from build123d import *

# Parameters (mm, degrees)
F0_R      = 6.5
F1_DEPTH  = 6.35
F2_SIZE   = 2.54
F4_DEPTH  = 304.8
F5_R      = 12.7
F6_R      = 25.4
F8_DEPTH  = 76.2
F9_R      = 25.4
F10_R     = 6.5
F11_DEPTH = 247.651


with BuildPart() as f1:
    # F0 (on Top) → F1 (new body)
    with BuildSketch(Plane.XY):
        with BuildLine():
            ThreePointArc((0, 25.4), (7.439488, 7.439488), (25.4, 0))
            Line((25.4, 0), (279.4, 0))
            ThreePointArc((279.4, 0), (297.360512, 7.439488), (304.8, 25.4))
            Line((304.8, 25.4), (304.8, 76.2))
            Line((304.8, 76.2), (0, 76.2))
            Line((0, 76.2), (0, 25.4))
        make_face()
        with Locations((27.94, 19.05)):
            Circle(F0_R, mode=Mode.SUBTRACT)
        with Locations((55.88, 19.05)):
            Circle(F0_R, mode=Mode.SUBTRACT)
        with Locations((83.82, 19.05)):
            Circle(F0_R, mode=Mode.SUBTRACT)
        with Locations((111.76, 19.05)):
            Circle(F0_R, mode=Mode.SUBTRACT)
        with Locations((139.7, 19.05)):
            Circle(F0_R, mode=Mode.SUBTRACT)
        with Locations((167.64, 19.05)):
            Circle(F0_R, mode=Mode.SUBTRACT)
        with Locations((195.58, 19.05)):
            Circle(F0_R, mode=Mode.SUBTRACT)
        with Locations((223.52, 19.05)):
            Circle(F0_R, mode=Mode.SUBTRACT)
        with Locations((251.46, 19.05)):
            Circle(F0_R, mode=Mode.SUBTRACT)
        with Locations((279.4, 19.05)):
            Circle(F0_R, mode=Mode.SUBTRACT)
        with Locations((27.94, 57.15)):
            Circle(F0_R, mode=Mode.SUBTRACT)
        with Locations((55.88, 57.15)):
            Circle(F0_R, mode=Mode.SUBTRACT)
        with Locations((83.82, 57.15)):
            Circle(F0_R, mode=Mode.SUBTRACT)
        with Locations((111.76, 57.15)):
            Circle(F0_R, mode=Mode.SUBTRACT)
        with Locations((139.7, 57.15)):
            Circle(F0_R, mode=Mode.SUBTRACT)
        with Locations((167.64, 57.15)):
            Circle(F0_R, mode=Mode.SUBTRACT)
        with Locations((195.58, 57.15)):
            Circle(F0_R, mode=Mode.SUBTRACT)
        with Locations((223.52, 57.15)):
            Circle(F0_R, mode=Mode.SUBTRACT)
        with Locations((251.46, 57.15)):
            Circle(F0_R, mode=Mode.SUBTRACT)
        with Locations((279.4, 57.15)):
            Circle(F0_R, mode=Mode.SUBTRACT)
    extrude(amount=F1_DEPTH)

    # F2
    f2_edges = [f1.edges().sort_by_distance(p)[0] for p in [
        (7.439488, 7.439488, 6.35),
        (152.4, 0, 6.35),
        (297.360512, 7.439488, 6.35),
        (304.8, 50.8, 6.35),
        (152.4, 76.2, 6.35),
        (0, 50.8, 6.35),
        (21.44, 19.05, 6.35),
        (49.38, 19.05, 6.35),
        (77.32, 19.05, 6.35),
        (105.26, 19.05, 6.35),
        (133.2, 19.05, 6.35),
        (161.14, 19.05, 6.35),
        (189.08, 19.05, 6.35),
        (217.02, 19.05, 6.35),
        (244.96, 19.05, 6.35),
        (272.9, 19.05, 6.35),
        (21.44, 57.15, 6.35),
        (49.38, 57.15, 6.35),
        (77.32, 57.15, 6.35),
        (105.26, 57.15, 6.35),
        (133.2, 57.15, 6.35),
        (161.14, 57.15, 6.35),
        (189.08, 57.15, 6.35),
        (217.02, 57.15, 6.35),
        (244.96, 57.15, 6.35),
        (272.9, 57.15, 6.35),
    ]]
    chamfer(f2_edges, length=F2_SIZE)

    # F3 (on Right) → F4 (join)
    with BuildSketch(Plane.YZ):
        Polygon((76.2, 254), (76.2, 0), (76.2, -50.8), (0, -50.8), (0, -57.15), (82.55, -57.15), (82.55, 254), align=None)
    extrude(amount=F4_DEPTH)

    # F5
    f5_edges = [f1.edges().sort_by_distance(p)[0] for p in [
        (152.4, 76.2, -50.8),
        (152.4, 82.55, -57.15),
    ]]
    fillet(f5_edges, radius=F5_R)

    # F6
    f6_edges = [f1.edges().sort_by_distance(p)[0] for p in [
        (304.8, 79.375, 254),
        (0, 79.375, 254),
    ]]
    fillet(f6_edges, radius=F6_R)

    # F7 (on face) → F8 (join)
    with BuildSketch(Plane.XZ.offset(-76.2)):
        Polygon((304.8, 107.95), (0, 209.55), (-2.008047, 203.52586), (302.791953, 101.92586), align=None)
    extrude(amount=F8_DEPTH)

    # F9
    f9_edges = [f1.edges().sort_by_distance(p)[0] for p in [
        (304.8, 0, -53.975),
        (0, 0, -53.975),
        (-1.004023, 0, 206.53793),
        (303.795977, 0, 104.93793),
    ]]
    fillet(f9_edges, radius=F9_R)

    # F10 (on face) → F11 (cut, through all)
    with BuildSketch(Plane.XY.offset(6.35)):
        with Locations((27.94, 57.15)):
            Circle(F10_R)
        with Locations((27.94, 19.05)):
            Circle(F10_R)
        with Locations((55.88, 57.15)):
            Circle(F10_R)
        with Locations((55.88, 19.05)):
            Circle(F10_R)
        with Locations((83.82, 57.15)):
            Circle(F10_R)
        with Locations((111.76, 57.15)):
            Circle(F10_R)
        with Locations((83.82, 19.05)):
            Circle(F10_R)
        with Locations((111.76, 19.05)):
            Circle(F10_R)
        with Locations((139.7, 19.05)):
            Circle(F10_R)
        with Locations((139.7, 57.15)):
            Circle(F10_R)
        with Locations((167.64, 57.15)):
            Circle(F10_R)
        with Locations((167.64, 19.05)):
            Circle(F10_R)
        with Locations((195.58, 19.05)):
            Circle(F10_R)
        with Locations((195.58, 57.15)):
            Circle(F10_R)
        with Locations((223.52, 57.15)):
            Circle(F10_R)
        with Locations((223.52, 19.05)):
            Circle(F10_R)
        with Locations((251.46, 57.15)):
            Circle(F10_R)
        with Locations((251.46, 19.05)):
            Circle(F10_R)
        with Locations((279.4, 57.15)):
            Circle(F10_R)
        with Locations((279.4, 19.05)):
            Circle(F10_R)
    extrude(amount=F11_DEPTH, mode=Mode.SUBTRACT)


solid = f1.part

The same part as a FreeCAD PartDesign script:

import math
import FreeCAD as App
import Part
import Sketcher

V = App.Vector
Q = App.Units.Quantity


def edges_at(feature, points):
    """Names of the edges that pass closest to the given points."""
    edges = feature.Shape.Edges
    near = lambda p: min(range(len(edges)), key=lambda i: edges[i].distToShape(Part.Vertex(*p))[0])
    return sorted({f"Edge{near(p) + 1}" for p in points})

doc = App.newDocument("Part")
params = doc.addObject("Spreadsheet::Sheet", "Params")
for row, (alias, value) in enumerate([
    ("sketch1_radius", "1 in"),
    ("sketch1_width", "10 in"),
    ("sketch1_height", "2 in"),
    ("pad1_length", "0.25 in"),
    ("chamfer_size", "0.1 in"),
    ("sketch2_width", "3 in"),
    ("sketch2_height", "12 in"),
    ("sketch2_width2", "3.25 in"),
    ("pad2_length", "12 in"),
    ("fillet_radius", "0.5 in"),
    ("fillet2_radius", "1 in"),
    ("sketch3_length", "0.25 in"),
    ("pad3_length", "3 in"),
    ("fillet3_radius", "1 in"),
], start=1):
    params.set(f"A{row}", alias)
    params.set(f"B{row}", "=" + value)
    params.setAlias(f"B{row}", alias)

body = doc.addObject("PartDesign::Body", "Body")

# Sketch on XY plane
sketch1 = body.newObject("Sketcher::SketchObject", "Sketch")
sketch1.AttachmentSupport = (doc.getObject("XY_Plane"), [""])
sketch1.MapMode = "FlatFace"
sketch1.addGeometry([
    Part.ArcOfCircle(Part.Circle(V(25, 25, 0), V(0, 0, 1), 25), math.radians(-180), math.radians(-90)),  # 0
    Part.LineSegment(V(25, 0, 0), V(279, 0, 0)),  # 1
    Part.ArcOfCircle(Part.Circle(V(279, 25, 0), V(0, 0, 1), 25), math.radians(-90), math.radians(0)),  # 2
    Part.LineSegment(V(305, 25, 0), V(305, 76, 0)),  # 3
    Part.LineSegment(V(305, 76, 0), V(0, 76, 0)),  # 4
    Part.LineSegment(V(0, 76, 0), V(0, 25, 0)),  # 5
    Part.Circle(V(28, 19, 0), V(0, 0, 1), 6),  # 6
    Part.Circle(V(56, 19, 0), V(0, 0, 1), 6),  # 7
    Part.Circle(V(84, 19, 0), V(0, 0, 1), 6),  # 8
    Part.Circle(V(112, 19, 0), V(0, 0, 1), 6),  # 9
    Part.Circle(V(140, 19, 0), V(0, 0, 1), 6),  # 10
    Part.Circle(V(168, 19, 0), V(0, 0, 1), 6),  # 11
    Part.Circle(V(196, 19, 0), V(0, 0, 1), 6),  # 12
    Part.Circle(V(224, 19, 0), V(0, 0, 1), 6),  # 13
    Part.Circle(V(251, 19, 0), V(0, 0, 1), 6),  # 14
    Part.Circle(V(279, 19, 0), V(0, 0, 1), 6),  # 15
    Part.Circle(V(28, 57, 0), V(0, 0, 1), 6),  # 16
    Part.Circle(V(56, 57, 0), V(0, 0, 1), 6),  # 17
    Part.Circle(V(84, 57, 0), V(0, 0, 1), 6),  # 18
    Part.Circle(V(112, 57, 0), V(0, 0, 1), 6),  # 19
    Part.Circle(V(140, 57, 0), V(0, 0, 1), 6),  # 20
    Part.Circle(V(168, 57, 0), V(0, 0, 1), 6),  # 21
    Part.Circle(V(196, 57, 0), V(0, 0, 1), 6),  # 22
    Part.Circle(V(224, 57, 0), V(0, 0, 1), 6),  # 23
    Part.Circle(V(251, 57, 0), V(0, 0, 1), 6),  # 24
    Part.Circle(V(279, 57, 0), V(0, 0, 1), 6),  # 25
], False)
sketch1.addConstraint([
    Sketcher.Constraint("Tangent", 0, 2, 1, 1),
    Sketcher.Constraint("Tangent", 1, 2, 2, 1),
    Sketcher.Constraint("Tangent", 2, 2, 3, 1),
    Sketcher.Constraint("Coincident", 3, 2, 4, 1),
    Sketcher.Constraint("Coincident", 4, 2, 5, 1),
    Sketcher.Constraint("Tangent", 5, 2, 0, 1),
    Sketcher.Constraint("Horizontal", 1),
    Sketcher.Constraint("Vertical", 3),
    Sketcher.Constraint("Horizontal", 4),
    Sketcher.Constraint("Vertical", 5),
    Sketcher.Constraint("Equal", 0, 2),
    Sketcher.Constraint("Equal", 6, 7),
    Sketcher.Constraint("Equal", 7, 8),
    Sketcher.Constraint("Equal", 8, 9),
    Sketcher.Constraint("Equal", 9, 10),
    Sketcher.Constraint("Equal", 10, 11),
    Sketcher.Constraint("Equal", 11, 12),
    Sketcher.Constraint("Equal", 12, 13),
    Sketcher.Constraint("Equal", 13, 14),
    Sketcher.Constraint("Equal", 14, 15),
    Sketcher.Constraint("Equal", 15, 16),
    Sketcher.Constraint("Equal", 16, 17),
    Sketcher.Constraint("Equal", 17, 18),
    Sketcher.Constraint("Equal", 18, 19),
    Sketcher.Constraint("Equal", 19, 20),
    Sketcher.Constraint("Equal", 20, 21),
    Sketcher.Constraint("Equal", 21, 22),
    Sketcher.Constraint("Equal", 22, 23),
    Sketcher.Constraint("Equal", 23, 24),
    Sketcher.Constraint("Equal", 24, 25),
    Sketcher.Constraint("PointOnObject", 0, 2, -1),
    Sketcher.Constraint("PointOnObject", 4, 2, -2),
    Sketcher.Constraint("Horizontal", 6, 3, 7, 3),
    Sketcher.Constraint("Horizontal", 7, 3, 8, 3),
    Sketcher.Constraint("Horizontal", 8, 3, 9, 3),
    Sketcher.Constraint("Horizontal", 9, 3, 10, 3),
    Sketcher.Constraint("Horizontal", 10, 3, 11, 3),
    Sketcher.Constraint("Horizontal", 11, 3, 12, 3),
    Sketcher.Constraint("Horizontal", 12, 3, 13, 3),
    Sketcher.Constraint("Horizontal", 13, 3, 14, 3),
    Sketcher.Constraint("Horizontal", 14, 3, 15, 3),
    Sketcher.Constraint("Horizontal", 16, 3, 17, 3),
    Sketcher.Constraint("Horizontal", 17, 3, 18, 3),
    Sketcher.Constraint("Horizontal", 18, 3, 19, 3),
    Sketcher.Constraint("Horizontal", 19, 3, 20, 3),
    Sketcher.Constraint("Horizontal", 20, 3, 21, 3),
    Sketcher.Constraint("Horizontal", 21, 3, 22, 3),
    Sketcher.Constraint("Horizontal", 22, 3, 23, 3),
    Sketcher.Constraint("Horizontal", 23, 3, 24, 3),
    Sketcher.Constraint("Horizontal", 24, 3, 25, 3),
    Sketcher.Constraint("Vertical", 2, 3, 15, 3),
    Sketcher.Constraint("Vertical", 6, 3, 16, 3),
    Sketcher.Constraint("Vertical", 7, 3, 17, 3),
    Sketcher.Constraint("Vertical", 8, 3, 18, 3),
    Sketcher.Constraint("Vertical", 9, 3, 19, 3),
    Sketcher.Constraint("Vertical", 10, 3, 20, 3),
    Sketcher.Constraint("Vertical", 11, 3, 21, 3),
    Sketcher.Constraint("Vertical", 12, 3, 22, 3),
    Sketcher.Constraint("Vertical", 13, 3, 23, 3),
    Sketcher.Constraint("Vertical", 14, 3, 24, 3),
    Sketcher.Constraint("Vertical", 15, 3, 25, 3),
    Sketcher.Constraint("Radius", 0, Q("1 in")),
    Sketcher.Constraint("DistanceX", 1, 1, 1, 2, Q("10 in")),
    Sketcher.Constraint("DistanceY", 3, 1, 3, 2, Q("2 in")),
    Sketcher.Constraint("DistanceX", -1, 1, 6, 3, Q("1.1 in")),
    Sketcher.Constraint("DistanceX", -1, 1, 7, 3, Q("2.2 in")),
    Sketcher.Constraint("DistanceX", -1, 1, 8, 3, Q("3.3 in")),
    Sketcher.Constraint("DistanceX", -1, 1, 9, 3, Q("4.4 in")),
    Sketcher.Constraint("DistanceX", -1, 1, 10, 3, Q("5.5 in")),
    Sketcher.Constraint("DistanceX", -1, 1, 11, 3, Q("6.6 in")),
    Sketcher.Constraint("DistanceX", -1, 1, 12, 3, Q("7.7 in")),
    Sketcher.Constraint("DistanceX", -1, 1, 13, 3, Q("8.8 in")),
    Sketcher.Constraint("DistanceX", -1, 1, 14, 3, Q("9.9 in")),
    Sketcher.Constraint("DistanceY", 6, 3, 16, 3, Q("1.5 in")),
    Sketcher.Constraint("Diameter", 6, Q("13 mm")),
    Sketcher.Constraint("DistanceY", -1, 1, 6, 3, Q("0.75 in")),
])
sketch1.setExpression("Constraints[61]", "Params.sketch1_radius")
sketch1.setExpression("Constraints[62]", "Params.sketch1_width")
sketch1.setExpression("Constraints[63]", "Params.sketch1_height")
pad1 = body.newObject("PartDesign::Pad", "Pad")
pad1.Profile = sketch1
pad1.setExpression("Length", "Params.pad1_length")
doc.recompute()

chamfer = body.newObject("PartDesign::Chamfer", "Chamfer")
chamfer.Base = (pad1, edges_at(pad1, [
    (7.439, 7.439, 6.35),
    (152.4, 0, 6.35),
    (297.361, 7.439, 6.35),
    (304.8, 50.8, 6.35),
    (152.4, 76.2, 6.35),
    (0, 50.8, 6.35),
    (21.44, 19.05, 6.35),
    (49.38, 19.05, 6.35),
    (77.32, 19.05, 6.35),
    (105.26, 19.05, 6.35),
    (133.2, 19.05, 6.35),
    (161.14, 19.05, 6.35),
    (189.08, 19.05, 6.35),
    (217.02, 19.05, 6.35),
    (244.96, 19.05, 6.35),
    (272.9, 19.05, 6.35),
    (21.44, 57.15, 6.35),
    (49.38, 57.15, 6.35),
    (77.32, 57.15, 6.35),
    (105.26, 57.15, 6.35),
    (133.2, 57.15, 6.35),
    (161.14, 57.15, 6.35),
    (189.08, 57.15, 6.35),
    (217.02, 57.15, 6.35),
    (244.96, 57.15, 6.35),
    (272.9, 57.15, 6.35),
]))
chamfer.setExpression("Size", "Params.chamfer_size")

# Sketch on YZ plane
sketch2 = body.newObject("Sketcher::SketchObject", "Sketch001")
sketch2.AttachmentSupport = (doc.getObject("YZ_Plane"), [""])
sketch2.MapMode = "FlatFace"
sketch2.addGeometry([
    Part.LineSegment(V(76, 254, 0), V(76, -51, 0)),  # 0
    Part.LineSegment(V(76, -51, 0), V(0, -51, 0)),  # 1
    Part.LineSegment(V(0, -51, 0), V(0, -57, 0)),  # 2
    Part.LineSegment(V(0, -57, 0), V(83, -57, 0)),  # 3
    Part.LineSegment(V(83, -57, 0), V(83, 254, 0)),  # 4
    Part.LineSegment(V(83, 254, 0), V(76, 254, 0)),  # 5
], False)
sketch2.addConstraint([
    Sketcher.Constraint("Coincident", 0, 2, 1, 1),
    Sketcher.Constraint("Coincident", 1, 2, 2, 1),
    Sketcher.Constraint("Coincident", 2, 2, 3, 1),
    Sketcher.Constraint("Coincident", 3, 2, 4, 1),
    Sketcher.Constraint("Coincident", 4, 2, 5, 1),
    Sketcher.Constraint("Coincident", 5, 2, 0, 1),
    Sketcher.Constraint("Vertical", 0),
    Sketcher.Constraint("Horizontal", 1),
    Sketcher.Constraint("Vertical", 2),
    Sketcher.Constraint("Horizontal", 3),
    Sketcher.Constraint("Vertical", 4),
    Sketcher.Constraint("Horizontal", 5),
    Sketcher.Constraint("PointOnObject", 1, 2, -2),
    Sketcher.Constraint("Equal", 5, 2),
    Sketcher.Constraint("DistanceX", 1, 2, 1, 1, Q("3 in")),
    Sketcher.Constraint("DistanceY", 0, 2, 0, 1, Q("12 in")),
    Sketcher.Constraint("DistanceY", 0, 2, -1, 1, Q("2 in")),
    Sketcher.Constraint("DistanceX", 3, 1, 3, 2, Q("3.25 in")),
])
sketch2.setExpression("Constraints[14]", "Params.sketch2_width")
sketch2.setExpression("Constraints[15]", "Params.sketch2_height")
sketch2.setExpression("Constraints[17]", "Params.sketch2_width2")
pad2 = body.newObject("PartDesign::Pad", "Pad001")
pad2.Profile = sketch2
pad2.setExpression("Length", "Params.pad2_length")
doc.recompute()

fillet = body.newObject("PartDesign::Fillet", "Fillet")
fillet.Base = (pad2, edges_at(pad2, [(152.4, 76.2, -50.8), (152.4, 82.55, -57.15)]))
fillet.setExpression("Radius", "Params.fillet_radius")
doc.recompute()

fillet2 = body.newObject("PartDesign::Fillet", "Fillet001")
fillet2.Base = (fillet, edges_at(fillet, [(304.8, 79.375, 254), (0, 79.375, 254)]))
fillet2.setExpression("Radius", "Params.fillet2_radius")

# Sketch on XZ plane
sketch3 = body.newObject("Sketcher::SketchObject", "Sketch002")
sketch3.AttachmentSupport = (doc.getObject("XZ_Plane"), [""])
sketch3.MapMode = "FlatFace"
sketch3.AttachmentOffset = App.Placement(V(0, 0, -3 * 25.4), App.Rotation())
sketch3.addGeometry([
    Part.LineSegment(V(305, 108, 0), V(0, 210, 0)),
    Part.LineSegment(V(0, 210, 0), V(-2, 204, 0)),
    Part.LineSegment(V(-2, 204, 0), V(303, 102, 0)),
    Part.LineSegment(V(303, 102, 0), V(305, 108, 0)),
], False)
sketch3.addConstraint([
    Sketcher.Constraint("Coincident", 0, 2, 1, 1),
    Sketcher.Constraint("Coincident", 1, 2, 2, 1),
    Sketcher.Constraint("Coincident", 2, 2, 3, 1),
    Sketcher.Constraint("Coincident", 3, 2, 0, 1),
    Sketcher.Constraint("PointOnObject", 0, 2, -2),
    Sketcher.Constraint("Perpendicular", 0, 1),
    Sketcher.Constraint("Perpendicular", 1, 2),
    Sketcher.Constraint("Perpendicular", 2, 3),
    Sketcher.Constraint("DistanceX", -1, 1, 3, 2, Q("12 in")),
    Sketcher.Constraint("DistanceY", 2, 2, 1, 2, Q("4 in")),
    Sketcher.Constraint("Distance", 1, Q("0.25 in")),
    Sketcher.Constraint("DistanceY", -1, 1, 0, 2, Q("8.25 in")),
])
sketch3.setExpression("Constraints[10]", "Params.sketch3_length")
pad3 = body.newObject("PartDesign::Pad", "Pad002")
pad3.Profile = sketch3
pad3.setExpression("Length", "Params.pad3_length")
doc.recompute()

fillet3 = body.newObject("PartDesign::Fillet", "Fillet002")
fillet3.Base = (pad3, edges_at(pad3, [
    (304.8, 0, -53.975),
    (0, 0, -53.975),
    (-1.004, 0, 206.538),
    (303.796, 0, 104.938),
]))
fillet3.setExpression("Radius", "Params.fillet3_radius")

# Sketch on XY plane
sketch4 = body.newObject("Sketcher::SketchObject", "Sketch003")
sketch4.AttachmentSupport = (doc.getObject("XY_Plane"), [""])
sketch4.MapMode = "FlatFace"
sketch4.AttachmentOffset = App.Placement(V(0, 0, 0.25 * 25.4), App.Rotation())
sketch4.addGeometry([
    Part.Circle(V(28, 57, 0), V(0, 0, 1), 6),  # 0
    Part.Circle(V(28, 19, 0), V(0, 0, 1), 6),  # 1
    Part.Circle(V(56, 57, 0), V(0, 0, 1), 6),  # 2
    Part.Circle(V(56, 19, 0), V(0, 0, 1), 6),  # 3
    Part.Circle(V(84, 57, 0), V(0, 0, 1), 6),  # 4
    Part.Circle(V(112, 57, 0), V(0, 0, 1), 6),  # 5
    Part.Circle(V(84, 19, 0), V(0, 0, 1), 6),  # 6
    Part.Circle(V(112, 19, 0), V(0, 0, 1), 6),  # 7
    Part.Circle(V(140, 19, 0), V(0, 0, 1), 6),  # 8
    Part.Circle(V(140, 57, 0), V(0, 0, 1), 6),  # 9
    Part.Circle(V(168, 57, 0), V(0, 0, 1), 6),  # 10
    Part.Circle(V(168, 19, 0), V(0, 0, 1), 6),  # 11
    Part.Circle(V(196, 19, 0), V(0, 0, 1), 6),  # 12
    Part.Circle(V(196, 57, 0), V(0, 0, 1), 6),  # 13
    Part.Circle(V(224, 57, 0), V(0, 0, 1), 6),  # 14
    Part.Circle(V(224, 19, 0), V(0, 0, 1), 6),  # 15
    Part.Circle(V(251, 57, 0), V(0, 0, 1), 6),  # 16
    Part.Circle(V(251, 19, 0), V(0, 0, 1), 6),  # 17
    Part.Circle(V(279, 57, 0), V(0, 0, 1), 6),  # 18
    Part.Circle(V(279, 19, 0), V(0, 0, 1), 6),  # 19
], False)
sketch4.addConstraint([
    Sketcher.Constraint("Equal", 0, 1),
    Sketcher.Constraint("Equal", 1, 2),
    Sketcher.Constraint("Equal", 2, 3),
    Sketcher.Constraint("Equal", 3, 4),
    Sketcher.Constraint("Equal", 4, 5),
    Sketcher.Constraint("Equal", 5, 6),
    Sketcher.Constraint("Equal", 6, 7),
    Sketcher.Constraint("Equal", 7, 8),
    Sketcher.Constraint("Equal", 8, 9),
    Sketcher.Constraint("Equal", 9, 10),
    Sketcher.Constraint("Equal", 10, 11),
    Sketcher.Constraint("Equal", 11, 12),
    Sketcher.Constraint("Equal", 12, 13),
    Sketcher.Constraint("Equal", 13, 14),
    Sketcher.Constraint("Equal", 14, 15),
    Sketcher.Constraint("Equal", 15, 16),
    Sketcher.Constraint("Equal", 16, 17),
    Sketcher.Constraint("Equal", 17, 18),
    Sketcher.Constraint("Equal", 18, 19),
    Sketcher.Constraint("Horizontal", 0, 3, 2, 3),
    Sketcher.Constraint("Horizontal", 1, 3, 3, 3),
    Sketcher.Constraint("Horizontal", 2, 3, 4, 3),
    Sketcher.Constraint("Horizontal", 4, 3, 5, 3),
    Sketcher.Constraint("Horizontal", 3, 3, 6, 3),
    Sketcher.Constraint("Horizontal", 6, 3, 7, 3),
    Sketcher.Constraint("Horizontal", 7, 3, 8, 3),
    Sketcher.Constraint("Horizontal", 5, 3, 9, 3),
    Sketcher.Constraint("Horizontal", 9, 3, 10, 3),
    Sketcher.Constraint("Horizontal", 8, 3, 11, 3),
    Sketcher.Constraint("Horizontal", 11, 3, 12, 3),
    Sketcher.Constraint("Horizontal", 10, 3, 13, 3),
    Sketcher.Constraint("Horizontal", 13, 3, 14, 3),
    Sketcher.Constraint("Horizontal", 12, 3, 15, 3),
    Sketcher.Constraint("Horizontal", 14, 3, 16, 3),
    Sketcher.Constraint("Horizontal", 15, 3, 17, 3),
    Sketcher.Constraint("Horizontal", 16, 3, 18, 3),
    Sketcher.Constraint("Horizontal", 17, 3, 19, 3),
    Sketcher.Constraint("Vertical", 0, 3, 1, 3),
    Sketcher.Constraint("Vertical", 2, 3, 3, 3),
    Sketcher.Constraint("Vertical", 4, 3, 6, 3),
    Sketcher.Constraint("Vertical", 5, 3, 7, 3),
    Sketcher.Constraint("Vertical", 8, 3, 9, 3),
    Sketcher.Constraint("Vertical", 10, 3, 11, 3),
    Sketcher.Constraint("Vertical", 12, 3, 13, 3),
    Sketcher.Constraint("Vertical", 14, 3, 15, 3),
    Sketcher.Constraint("Vertical", 16, 3, 17, 3),
    Sketcher.Constraint("Vertical", 18, 3, 19, 3),
    Sketcher.Constraint("DistanceX", -1, 1, 18, 3, Q("11 in")),
    Sketcher.Constraint("DistanceX", -1, 1, 0, 3, Q("1.1 in")),
    Sketcher.Constraint("DistanceX", -1, 1, 2, 3, Q("2.2 in")),
    Sketcher.Constraint("DistanceX", -1, 1, 4, 3, Q("3.3 in")),
    Sketcher.Constraint("DistanceX", -1, 1, 5, 3, Q("4.4 in")),
    Sketcher.Constraint("DistanceX", -1, 1, 8, 3, Q("5.5 in")),
    Sketcher.Constraint("DistanceX", -1, 1, 10, 3, Q("6.6 in")),
    Sketcher.Constraint("DistanceX", -1, 1, 12, 3, Q("7.7 in")),
    Sketcher.Constraint("DistanceX", -1, 1, 14, 3, Q("8.8 in")),
    Sketcher.Constraint("DistanceX", -1, 1, 16, 3, Q("9.9 in")),
    Sketcher.Constraint("DistanceY", 1, 3, 0, 3, Q("1.5 in")),
    Sketcher.Constraint("Diameter", 0, Q("13 mm")),
    Sketcher.Constraint("DistanceY", -1, 1, 0, 3, Q("2.25 in")),
])
pocket1 = body.newObject("PartDesign::Pocket", "Pocket")
pocket1.Profile = sketch4
pocket1.Type = "ThroughAll"
pocket1.Reversed = True

doc.recompute()
